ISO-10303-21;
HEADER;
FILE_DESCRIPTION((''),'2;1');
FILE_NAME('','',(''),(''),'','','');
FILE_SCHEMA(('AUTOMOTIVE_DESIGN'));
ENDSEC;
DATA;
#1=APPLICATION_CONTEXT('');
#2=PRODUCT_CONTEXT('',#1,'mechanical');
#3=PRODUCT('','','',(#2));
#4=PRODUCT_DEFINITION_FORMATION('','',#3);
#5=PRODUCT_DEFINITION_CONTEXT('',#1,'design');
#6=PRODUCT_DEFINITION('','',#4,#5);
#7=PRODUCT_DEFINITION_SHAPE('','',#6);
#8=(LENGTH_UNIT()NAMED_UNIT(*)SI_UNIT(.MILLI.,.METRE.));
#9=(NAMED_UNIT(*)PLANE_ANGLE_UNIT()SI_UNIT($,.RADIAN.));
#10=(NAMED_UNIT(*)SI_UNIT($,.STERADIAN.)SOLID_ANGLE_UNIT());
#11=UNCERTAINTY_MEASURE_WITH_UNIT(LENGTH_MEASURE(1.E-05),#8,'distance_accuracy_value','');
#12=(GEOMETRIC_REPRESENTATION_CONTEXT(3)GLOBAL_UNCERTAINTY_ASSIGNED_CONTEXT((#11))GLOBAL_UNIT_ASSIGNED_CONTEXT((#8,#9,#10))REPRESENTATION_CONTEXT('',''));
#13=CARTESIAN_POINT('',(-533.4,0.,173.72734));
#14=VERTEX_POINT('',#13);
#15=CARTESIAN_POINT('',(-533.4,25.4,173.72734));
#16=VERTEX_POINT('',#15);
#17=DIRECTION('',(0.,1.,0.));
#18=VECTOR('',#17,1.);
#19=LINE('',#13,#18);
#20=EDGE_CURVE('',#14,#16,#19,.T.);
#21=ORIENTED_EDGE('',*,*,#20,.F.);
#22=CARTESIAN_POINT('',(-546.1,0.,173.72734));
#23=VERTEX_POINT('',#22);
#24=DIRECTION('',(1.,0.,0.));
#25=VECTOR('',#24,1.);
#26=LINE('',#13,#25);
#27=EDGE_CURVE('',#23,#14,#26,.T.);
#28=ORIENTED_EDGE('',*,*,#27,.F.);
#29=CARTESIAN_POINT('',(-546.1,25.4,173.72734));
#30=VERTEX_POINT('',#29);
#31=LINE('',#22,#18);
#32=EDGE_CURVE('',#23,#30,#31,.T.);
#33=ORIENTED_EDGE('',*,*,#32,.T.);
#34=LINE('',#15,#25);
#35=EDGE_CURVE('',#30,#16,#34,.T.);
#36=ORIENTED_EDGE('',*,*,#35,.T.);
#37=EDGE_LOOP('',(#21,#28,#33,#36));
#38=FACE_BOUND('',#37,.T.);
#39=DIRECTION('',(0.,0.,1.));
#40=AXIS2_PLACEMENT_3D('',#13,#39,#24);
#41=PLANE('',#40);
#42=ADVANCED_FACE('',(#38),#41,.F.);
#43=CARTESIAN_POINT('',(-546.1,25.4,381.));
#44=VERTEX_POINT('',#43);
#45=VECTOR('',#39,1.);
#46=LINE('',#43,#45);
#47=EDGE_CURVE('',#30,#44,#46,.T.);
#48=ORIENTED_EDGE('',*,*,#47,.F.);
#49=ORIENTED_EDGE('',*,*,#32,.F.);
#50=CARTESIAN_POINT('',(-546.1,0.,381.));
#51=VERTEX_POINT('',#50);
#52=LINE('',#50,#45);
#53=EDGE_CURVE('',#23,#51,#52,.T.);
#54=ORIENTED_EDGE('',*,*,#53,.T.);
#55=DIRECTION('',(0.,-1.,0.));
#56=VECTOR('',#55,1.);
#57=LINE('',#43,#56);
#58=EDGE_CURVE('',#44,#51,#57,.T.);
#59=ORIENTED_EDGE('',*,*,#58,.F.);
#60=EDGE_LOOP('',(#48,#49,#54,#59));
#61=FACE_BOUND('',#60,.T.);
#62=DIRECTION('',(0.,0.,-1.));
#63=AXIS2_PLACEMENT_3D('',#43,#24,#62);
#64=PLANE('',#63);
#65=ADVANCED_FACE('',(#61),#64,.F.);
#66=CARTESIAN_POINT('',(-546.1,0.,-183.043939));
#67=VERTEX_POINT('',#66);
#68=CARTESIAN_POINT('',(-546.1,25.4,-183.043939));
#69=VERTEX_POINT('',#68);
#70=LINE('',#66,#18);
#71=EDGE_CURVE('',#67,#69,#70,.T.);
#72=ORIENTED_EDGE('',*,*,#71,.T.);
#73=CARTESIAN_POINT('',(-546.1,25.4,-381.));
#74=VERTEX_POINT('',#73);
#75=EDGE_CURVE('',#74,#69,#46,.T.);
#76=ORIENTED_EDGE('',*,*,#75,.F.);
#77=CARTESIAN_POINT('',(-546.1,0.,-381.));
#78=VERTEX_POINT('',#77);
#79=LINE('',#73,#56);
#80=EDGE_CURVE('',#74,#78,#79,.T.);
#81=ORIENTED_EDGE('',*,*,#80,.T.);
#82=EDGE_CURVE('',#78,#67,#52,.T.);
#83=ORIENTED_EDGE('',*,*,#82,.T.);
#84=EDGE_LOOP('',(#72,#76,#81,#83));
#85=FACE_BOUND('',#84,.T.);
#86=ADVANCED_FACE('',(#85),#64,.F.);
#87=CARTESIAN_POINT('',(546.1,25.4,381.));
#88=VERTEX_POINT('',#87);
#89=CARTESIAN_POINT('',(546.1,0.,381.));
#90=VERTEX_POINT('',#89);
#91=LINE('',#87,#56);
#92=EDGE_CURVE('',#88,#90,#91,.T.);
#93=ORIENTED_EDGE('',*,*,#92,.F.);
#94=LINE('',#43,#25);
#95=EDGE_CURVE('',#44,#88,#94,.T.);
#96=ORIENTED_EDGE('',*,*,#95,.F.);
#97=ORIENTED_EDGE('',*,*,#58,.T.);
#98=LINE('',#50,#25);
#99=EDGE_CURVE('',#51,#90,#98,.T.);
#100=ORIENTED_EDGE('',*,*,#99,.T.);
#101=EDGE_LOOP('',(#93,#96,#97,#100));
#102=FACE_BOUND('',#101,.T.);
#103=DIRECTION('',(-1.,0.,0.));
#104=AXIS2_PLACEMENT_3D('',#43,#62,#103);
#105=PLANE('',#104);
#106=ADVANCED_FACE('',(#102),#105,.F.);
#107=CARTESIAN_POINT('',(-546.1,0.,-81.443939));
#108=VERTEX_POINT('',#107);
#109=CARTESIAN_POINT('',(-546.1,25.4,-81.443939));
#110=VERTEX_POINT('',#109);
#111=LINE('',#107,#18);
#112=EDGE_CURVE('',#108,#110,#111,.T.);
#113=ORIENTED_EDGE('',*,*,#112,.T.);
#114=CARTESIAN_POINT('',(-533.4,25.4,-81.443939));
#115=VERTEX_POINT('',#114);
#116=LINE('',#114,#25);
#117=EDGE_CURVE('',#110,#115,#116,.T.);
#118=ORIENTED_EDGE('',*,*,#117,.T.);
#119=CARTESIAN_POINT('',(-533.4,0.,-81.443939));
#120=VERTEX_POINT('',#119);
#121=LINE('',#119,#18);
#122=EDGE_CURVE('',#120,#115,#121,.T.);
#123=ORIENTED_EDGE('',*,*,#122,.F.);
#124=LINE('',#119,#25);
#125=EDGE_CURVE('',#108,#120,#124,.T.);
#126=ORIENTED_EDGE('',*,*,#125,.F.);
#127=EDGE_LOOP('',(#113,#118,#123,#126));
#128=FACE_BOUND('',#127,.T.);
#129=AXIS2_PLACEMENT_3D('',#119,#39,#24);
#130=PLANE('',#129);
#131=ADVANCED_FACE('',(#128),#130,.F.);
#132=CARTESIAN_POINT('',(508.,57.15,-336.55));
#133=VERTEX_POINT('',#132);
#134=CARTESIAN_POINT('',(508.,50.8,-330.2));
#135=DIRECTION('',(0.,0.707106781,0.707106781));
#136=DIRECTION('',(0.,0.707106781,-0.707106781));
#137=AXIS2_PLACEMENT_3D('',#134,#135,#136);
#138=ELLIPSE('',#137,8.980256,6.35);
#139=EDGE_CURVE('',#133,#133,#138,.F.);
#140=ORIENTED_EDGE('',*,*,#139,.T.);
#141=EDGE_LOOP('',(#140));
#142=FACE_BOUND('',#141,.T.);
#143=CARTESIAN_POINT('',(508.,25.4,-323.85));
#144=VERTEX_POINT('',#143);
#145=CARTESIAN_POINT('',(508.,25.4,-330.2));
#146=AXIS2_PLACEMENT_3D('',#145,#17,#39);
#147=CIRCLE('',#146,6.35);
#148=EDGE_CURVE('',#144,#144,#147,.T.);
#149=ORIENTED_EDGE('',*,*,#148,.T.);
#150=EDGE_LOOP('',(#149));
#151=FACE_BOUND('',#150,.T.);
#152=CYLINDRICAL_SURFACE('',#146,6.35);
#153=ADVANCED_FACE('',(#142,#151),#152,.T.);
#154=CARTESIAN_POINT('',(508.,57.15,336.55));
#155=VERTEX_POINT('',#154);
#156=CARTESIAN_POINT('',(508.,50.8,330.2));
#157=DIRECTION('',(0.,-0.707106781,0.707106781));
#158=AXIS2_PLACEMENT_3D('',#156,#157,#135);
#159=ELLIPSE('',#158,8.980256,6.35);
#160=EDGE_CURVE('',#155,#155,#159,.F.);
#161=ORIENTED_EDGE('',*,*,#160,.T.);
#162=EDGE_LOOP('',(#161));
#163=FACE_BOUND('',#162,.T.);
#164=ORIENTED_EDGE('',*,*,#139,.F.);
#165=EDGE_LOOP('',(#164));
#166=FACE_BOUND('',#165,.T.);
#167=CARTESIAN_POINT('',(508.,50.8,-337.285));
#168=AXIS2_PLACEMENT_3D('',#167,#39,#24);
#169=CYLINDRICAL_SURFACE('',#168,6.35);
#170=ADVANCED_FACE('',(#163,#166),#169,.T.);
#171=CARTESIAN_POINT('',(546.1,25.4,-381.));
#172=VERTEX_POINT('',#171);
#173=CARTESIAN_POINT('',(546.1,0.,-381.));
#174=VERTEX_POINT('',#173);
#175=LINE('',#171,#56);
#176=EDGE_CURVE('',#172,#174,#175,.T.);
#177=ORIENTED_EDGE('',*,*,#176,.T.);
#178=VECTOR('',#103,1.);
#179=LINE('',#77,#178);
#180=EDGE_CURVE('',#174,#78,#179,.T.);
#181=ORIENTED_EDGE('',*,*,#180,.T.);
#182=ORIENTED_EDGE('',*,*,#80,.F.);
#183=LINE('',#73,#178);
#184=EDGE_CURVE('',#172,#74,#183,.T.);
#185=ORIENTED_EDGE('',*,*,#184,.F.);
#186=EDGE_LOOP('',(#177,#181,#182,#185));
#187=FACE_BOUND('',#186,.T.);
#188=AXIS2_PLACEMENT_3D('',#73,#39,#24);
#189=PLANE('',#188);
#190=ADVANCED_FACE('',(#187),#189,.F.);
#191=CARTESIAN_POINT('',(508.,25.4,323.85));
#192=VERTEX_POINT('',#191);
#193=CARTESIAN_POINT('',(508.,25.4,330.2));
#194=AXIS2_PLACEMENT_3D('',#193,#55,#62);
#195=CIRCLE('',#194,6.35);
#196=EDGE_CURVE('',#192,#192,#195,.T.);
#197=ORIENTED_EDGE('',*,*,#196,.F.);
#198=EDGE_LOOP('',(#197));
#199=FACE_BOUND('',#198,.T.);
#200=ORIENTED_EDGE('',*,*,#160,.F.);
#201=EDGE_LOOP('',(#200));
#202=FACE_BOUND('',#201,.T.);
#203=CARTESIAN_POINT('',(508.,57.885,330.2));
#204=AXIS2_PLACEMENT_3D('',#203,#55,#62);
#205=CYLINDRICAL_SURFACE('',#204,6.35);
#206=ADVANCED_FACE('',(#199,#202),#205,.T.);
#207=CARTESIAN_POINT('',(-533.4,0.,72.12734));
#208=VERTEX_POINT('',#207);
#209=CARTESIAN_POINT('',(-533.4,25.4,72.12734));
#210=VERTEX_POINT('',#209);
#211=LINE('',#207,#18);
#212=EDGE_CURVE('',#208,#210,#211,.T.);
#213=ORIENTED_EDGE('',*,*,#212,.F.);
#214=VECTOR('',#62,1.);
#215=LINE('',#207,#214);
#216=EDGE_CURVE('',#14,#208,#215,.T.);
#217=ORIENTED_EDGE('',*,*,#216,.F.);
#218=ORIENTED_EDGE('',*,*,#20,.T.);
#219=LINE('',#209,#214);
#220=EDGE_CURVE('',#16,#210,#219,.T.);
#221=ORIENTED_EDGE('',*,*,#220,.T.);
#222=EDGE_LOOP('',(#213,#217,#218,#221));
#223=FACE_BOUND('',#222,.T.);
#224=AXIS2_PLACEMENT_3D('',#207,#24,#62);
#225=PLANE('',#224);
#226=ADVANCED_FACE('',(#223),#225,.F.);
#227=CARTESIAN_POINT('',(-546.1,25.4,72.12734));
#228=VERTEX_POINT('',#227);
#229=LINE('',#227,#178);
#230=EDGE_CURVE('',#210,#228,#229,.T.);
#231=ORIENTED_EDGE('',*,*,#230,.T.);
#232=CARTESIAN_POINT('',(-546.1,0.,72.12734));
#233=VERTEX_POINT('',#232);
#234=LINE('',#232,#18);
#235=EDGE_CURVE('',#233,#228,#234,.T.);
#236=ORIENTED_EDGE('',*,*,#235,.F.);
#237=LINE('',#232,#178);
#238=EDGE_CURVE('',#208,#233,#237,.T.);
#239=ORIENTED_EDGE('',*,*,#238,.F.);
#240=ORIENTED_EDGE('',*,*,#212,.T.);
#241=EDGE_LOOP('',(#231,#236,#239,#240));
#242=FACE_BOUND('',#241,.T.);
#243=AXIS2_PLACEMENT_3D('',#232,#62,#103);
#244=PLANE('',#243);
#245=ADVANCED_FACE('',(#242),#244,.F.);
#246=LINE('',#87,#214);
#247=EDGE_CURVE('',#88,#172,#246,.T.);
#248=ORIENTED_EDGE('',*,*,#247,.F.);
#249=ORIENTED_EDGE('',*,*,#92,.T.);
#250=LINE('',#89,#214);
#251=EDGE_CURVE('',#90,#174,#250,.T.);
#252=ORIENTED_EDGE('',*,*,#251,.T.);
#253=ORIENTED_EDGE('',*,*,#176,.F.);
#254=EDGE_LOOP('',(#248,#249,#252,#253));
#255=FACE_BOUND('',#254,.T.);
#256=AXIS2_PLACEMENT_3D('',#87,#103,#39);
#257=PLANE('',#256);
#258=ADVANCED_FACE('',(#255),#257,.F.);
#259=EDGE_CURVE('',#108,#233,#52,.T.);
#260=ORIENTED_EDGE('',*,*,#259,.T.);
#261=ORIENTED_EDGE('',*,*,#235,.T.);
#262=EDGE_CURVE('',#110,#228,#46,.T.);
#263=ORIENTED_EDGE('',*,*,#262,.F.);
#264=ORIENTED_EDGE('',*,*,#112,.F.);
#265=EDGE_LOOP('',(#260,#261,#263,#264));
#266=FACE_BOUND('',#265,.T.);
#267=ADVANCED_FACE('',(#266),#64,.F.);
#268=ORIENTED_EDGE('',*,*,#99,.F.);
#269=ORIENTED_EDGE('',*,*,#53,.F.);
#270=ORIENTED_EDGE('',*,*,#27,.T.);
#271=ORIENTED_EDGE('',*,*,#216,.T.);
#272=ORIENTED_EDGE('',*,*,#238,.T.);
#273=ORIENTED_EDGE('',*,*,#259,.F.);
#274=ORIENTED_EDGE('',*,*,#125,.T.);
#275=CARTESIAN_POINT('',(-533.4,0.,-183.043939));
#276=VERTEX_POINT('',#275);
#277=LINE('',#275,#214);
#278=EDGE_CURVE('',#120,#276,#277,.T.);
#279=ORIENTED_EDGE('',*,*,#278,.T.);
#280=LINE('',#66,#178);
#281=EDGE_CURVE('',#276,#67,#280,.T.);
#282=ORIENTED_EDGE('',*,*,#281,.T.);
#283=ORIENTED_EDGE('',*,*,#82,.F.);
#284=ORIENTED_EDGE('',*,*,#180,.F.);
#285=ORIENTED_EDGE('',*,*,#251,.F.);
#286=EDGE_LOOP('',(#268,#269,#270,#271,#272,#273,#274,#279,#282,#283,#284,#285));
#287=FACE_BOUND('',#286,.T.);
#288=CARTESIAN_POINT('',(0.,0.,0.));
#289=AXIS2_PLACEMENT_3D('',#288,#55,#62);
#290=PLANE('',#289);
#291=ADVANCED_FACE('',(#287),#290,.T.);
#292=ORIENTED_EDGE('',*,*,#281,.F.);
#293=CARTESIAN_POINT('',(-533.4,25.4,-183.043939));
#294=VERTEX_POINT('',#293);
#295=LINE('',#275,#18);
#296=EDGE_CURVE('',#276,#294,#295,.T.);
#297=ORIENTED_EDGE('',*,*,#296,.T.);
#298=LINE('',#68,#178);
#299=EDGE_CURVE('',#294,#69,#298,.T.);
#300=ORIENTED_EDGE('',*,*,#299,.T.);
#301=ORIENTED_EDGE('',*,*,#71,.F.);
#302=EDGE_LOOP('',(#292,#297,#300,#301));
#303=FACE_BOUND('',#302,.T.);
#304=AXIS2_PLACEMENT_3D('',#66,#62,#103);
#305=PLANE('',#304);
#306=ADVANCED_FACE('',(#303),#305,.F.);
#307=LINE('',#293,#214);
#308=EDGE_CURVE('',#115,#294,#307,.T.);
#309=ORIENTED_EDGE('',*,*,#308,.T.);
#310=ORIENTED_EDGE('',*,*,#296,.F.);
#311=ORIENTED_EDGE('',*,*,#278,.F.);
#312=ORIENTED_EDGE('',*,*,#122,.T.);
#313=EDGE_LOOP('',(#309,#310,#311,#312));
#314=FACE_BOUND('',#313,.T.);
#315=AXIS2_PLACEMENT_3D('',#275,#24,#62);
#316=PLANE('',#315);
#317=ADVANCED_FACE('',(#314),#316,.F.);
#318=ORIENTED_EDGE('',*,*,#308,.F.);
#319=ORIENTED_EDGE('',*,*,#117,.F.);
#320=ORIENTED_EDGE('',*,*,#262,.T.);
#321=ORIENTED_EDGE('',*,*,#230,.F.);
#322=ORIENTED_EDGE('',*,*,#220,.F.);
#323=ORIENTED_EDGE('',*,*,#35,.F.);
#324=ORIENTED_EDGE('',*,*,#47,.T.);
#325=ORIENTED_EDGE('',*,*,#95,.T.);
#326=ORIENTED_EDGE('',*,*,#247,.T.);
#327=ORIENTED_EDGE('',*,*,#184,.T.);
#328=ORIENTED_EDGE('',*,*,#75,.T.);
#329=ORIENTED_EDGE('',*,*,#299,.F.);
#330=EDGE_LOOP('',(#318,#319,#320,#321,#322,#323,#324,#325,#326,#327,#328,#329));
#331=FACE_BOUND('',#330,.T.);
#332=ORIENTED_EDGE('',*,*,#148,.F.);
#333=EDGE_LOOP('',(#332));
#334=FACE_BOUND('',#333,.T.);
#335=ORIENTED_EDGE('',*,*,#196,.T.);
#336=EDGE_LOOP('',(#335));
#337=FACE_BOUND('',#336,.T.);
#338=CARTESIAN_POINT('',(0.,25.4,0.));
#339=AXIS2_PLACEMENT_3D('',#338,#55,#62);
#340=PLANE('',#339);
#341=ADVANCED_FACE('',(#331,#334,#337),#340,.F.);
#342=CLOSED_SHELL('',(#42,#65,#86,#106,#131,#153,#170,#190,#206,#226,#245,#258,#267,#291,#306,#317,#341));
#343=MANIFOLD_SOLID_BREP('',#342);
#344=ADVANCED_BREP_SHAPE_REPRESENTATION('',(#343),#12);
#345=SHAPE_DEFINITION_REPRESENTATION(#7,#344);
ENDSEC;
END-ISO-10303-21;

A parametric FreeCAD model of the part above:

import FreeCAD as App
import Part
import Sketcher

V = App.Vector
Q = App.Units.Quantity


def add_polygon(sketch, points):
    """Adds a closed chain of lines whose ends are joined by coincident constraints."""
    first, n = sketch.GeometryCount, len(points)
    for a, b in zip(points, points[1:] + points[:1]):
        sketch.addGeometry(Part.LineSegment(App.Vector(*a, 0), App.Vector(*b, 0)), False)
    for i in range(n):
        sketch.addConstraint(Sketcher.Constraint("Coincident", first + i, 2, first + (i + 1) % n, 1))

doc = App.newDocument("Part")
body = doc.addObject("PartDesign::Body", "Body")

# Sketch on XZ plane
sketch1 = body.newObject("Sketcher::SketchObject", "Sketch")
sketch1.AttachmentSupport = (doc.getObject("XZ_Plane"), [""])
sketch1.MapMode = "FlatFace"
add_polygon(sketch1, [(-546, -381), (-546, 381), (546, 381), (546, -381)])  # lines 0-3
sketch1.addConstraint(Sketcher.Constraint("Vertical", 0))
sketch1.addConstraint(Sketcher.Constraint("Horizontal", 1))
sketch1.addConstraint(Sketcher.Constraint("Vertical", 2))
sketch1.addConstraint(Sketcher.Constraint("Horizontal", 3))
sketch1.addConstraint(Sketcher.Constraint("Symmetric", 0, 2, 2, 2, -1, 1))
sketch1.addConstraint(Sketcher.Constraint("DistanceX", 1, 1, 1, 2, Q("43 in")))
sketch1.addConstraint(Sketcher.Constraint("DistanceY", 0, 1, 0, 2, Q("30 in")))
pad1 = body.newObject("PartDesign::Pad", "Pad")
pad1.Profile = sketch1
pad1.Length = Q("1 in")
pad1.Reversed = True

# Sketch on XZ plane
sketch2 = body.newObject("Sketcher::SketchObject", "Sketch001")
sketch2.AttachmentSupport = (doc.getObject("XZ_Plane"), [""])
sketch2.MapMode = "FlatFace"
sketch2.AttachmentOffset = App.Placement(V(0, 0, -1 * 25.4), App.Rotation())
add_polygon(sketch2, [(-546, -183), (-546, -81), (-533, -81), (-533, -183)])  # lines 0-3
add_polygon(sketch2, [(-546, 174), (-533, 174), (-533, 72), (-546, 72)])  # lines 4-7
sketch2.addConstraint(Sketcher.Constraint("Vertical", 0))
sketch2.addConstraint(Sketcher.Constraint("Horizontal", 1))
sketch2.addConstraint(Sketcher.Constraint("Vertical", 2))
sketch2.addConstraint(Sketcher.Constraint("Horizontal", 3))
sketch2.addConstraint(Sketcher.Constraint("Horizontal", 4))
sketch2.addConstraint(Sketcher.Constraint("Vertical", 5))
sketch2.addConstraint(Sketcher.Constraint("Horizontal", 6))
sketch2.addConstraint(Sketcher.Constraint("Vertical", 7))
sketch2.addConstraint(Sketcher.Constraint("Vertical", 2, 2, 4, 2))
sketch2.addConstraint(Sketcher.Constraint("Vertical", 3, 2, 6, 2))
sketch2.addConstraint(Sketcher.Constraint("Equal", 2, 5))
sketch2.addConstraint(Sketcher.Constraint("DistanceY", 0, 1, 0, 2, Q("4 in")))
sketch2.addConstraint(Sketcher.Constraint("DistanceX", 1, 1, 1, 2, Q("0.5 in")))
sketch2.addConstraint(Sketcher.Constraint("DistanceX", 1, 2, -1, 1, Q("21 in")))
sketch2.addConstraint(Sketcher.Constraint("DistanceY", 0, 2, -1, 1, 81.443939))
sketch2.addConstraint(Sketcher.Constraint("DistanceY", -1, 1, 4, 2, 173.72734))
pocket1 = body.newObject("PartDesign::Pocket", "Pocket")
pocket1.Profile = sketch2
pocket1.Type = "ThroughAll"
pocket1.Reversed = True

# Sketch on XZ plane
sketch3 = body.newObject("Sketcher::SketchObject", "Sketch002")
sketch3.AttachmentSupport = (doc.getObject("XZ_Plane"), [""])
sketch3.MapMode = "FlatFace"
sketch3.AttachmentOffset = App.Placement(V(0, 0, -1 * 25.4), App.Rotation())
sketch3.addGeometry(Part.Circle(V(508, 330, 0), V(0, 0, 1), 6), False)
sketch3.addConstraint(Sketcher.Constraint("Diameter", 0, Q("0.5 in")))
sketch3.addConstraint(Sketcher.Constraint("DistanceX", -1, 1, 0, 3, Q("20 in")))
sketch3.addConstraint(Sketcher.Constraint("DistanceY", -1, 1, 0, 3, Q("13 in")))

# Sketch on YZ plane
sketch4 = body.newObject("Sketcher::SketchObject", "Sketch003")
sketch4.AttachmentSupport = (doc.getObject("YZ_Plane"), [""])
sketch4.MapMode = "FlatFace"
sketch4.AttachmentOffset = App.Placement(V(0, 0, 20 * 25.4), App.Rotation())
sketch4.addGeometry(Part.LineSegment(V(25, 330, 0), V(51, 330, 0)), False)
sketch4.addGeometry(Part.LineSegment(V(51, 330, 0), V(51, -330, 0)), False)
sketch4.addGeometry(Part.LineSegment(V(51, -330, 0), V(25, -330, 0)), False)
sketch4.addConstraint(Sketcher.Constraint("Coincident", 0, 2, 1, 1))
sketch4.addConstraint(Sketcher.Constraint("Coincident", 1, 2, 2, 1))
sketch4.addConstraint(Sketcher.Constraint("Horizontal", 0))
sketch4.addConstraint(Sketcher.Constraint("Vertical", 1))
sketch4.addConstraint(Sketcher.Constraint("Horizontal", 2))
sketch4.addConstraint(Sketcher.Constraint("Symmetric", 0, 1, 2, 2, -1))
sketch4.addConstraint(Sketcher.Constraint("DistanceX", 0, 1, 0, 2, Q("1 in")))
sketch4.addConstraint(Sketcher.Constraint("DistanceY", 1, 2, 1, 1, Q("26 in")))
sketch4.addConstraint(Sketcher.Constraint("DistanceX", -1, 1, 0, 1, Q("1 in")))
doc.recompute()

additivepipe = body.newObject("PartDesign::AdditivePipe", "AdditivePipe")
additivepipe.Profile = sketch3
additivepipe.Spine = (sketch4, ["Edge1", "Edge2", "Edge3"])
additivepipe.Transition = "Right corner"

doc.recompute()
